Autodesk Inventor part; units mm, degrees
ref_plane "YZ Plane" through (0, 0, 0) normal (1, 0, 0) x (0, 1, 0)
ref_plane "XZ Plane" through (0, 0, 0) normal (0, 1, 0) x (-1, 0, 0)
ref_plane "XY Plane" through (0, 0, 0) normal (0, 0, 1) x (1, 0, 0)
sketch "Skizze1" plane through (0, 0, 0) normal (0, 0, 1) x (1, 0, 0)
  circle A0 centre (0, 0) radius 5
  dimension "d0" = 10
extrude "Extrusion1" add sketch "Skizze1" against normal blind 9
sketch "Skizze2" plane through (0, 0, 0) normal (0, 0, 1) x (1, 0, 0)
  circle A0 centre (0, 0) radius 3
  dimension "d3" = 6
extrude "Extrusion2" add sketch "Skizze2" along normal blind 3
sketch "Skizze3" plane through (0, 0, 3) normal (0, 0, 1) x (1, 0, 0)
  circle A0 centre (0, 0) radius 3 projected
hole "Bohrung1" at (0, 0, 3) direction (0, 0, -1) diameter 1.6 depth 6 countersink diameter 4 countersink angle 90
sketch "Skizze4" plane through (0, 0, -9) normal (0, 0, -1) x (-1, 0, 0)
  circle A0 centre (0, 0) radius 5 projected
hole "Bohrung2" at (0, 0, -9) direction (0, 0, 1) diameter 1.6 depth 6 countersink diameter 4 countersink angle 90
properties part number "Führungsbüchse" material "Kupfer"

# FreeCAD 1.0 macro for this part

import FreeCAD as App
import Part
import Sketcher

V = App.Vector
Q = App.Units.Quantity

doc = App.newDocument("Part")
body = doc.addObject("PartDesign::Body", "Body")

sketch1 = body.newObject("Sketcher::SketchObject", "Sketch")
sketch1.AttachmentSupport = (doc.getObject("XY_Plane"), [""])
sketch1.MapMode = "FlatFace"
sketch1.addGeometry(Part.Circle(V(0, 0, 0), V(0, 0, 1), 5), False)
sketch1.addConstraint([
    Sketcher.Constraint("Coincident", 0, 3, -1, 1),
    Sketcher.Constraint("Diameter", 0, Q("10 mm")),
])
pad1 = body.newObject("PartDesign::Pad", "Pad")
pad1.Profile = sketch1
pad1.Length = 9
pad1.Reversed = True

sketch2 = body.newObject("Sketcher::SketchObject", "Sketch001")
sketch2.AttachmentSupport = (doc.getObject("XY_Plane"), [""])
sketch2.MapMode = "FlatFace"
sketch2.addGeometry(Part.Circle(V(0, 0, 0), V(0, 0, 1), 3), False)
sketch2.addConstraint([
    Sketcher.Constraint("Coincident", 0, 3, -1, 1),
    Sketcher.Constraint("Diameter", 0, Q("6 mm")),
])
pad2 = body.newObject("PartDesign::Pad", "Pad001")
pad2.Profile = sketch2
pad2.Length = 3

sketch3 = body.newObject("Sketcher::SketchObject", "Sketch002")
sketch3.AttachmentSupport = (doc.getObject("XY_Plane"), [""])
sketch3.MapMode = "FlatFace"
sketch3.AttachmentOffset = App.Placement(V(0, 0, 3), App.Rotation())
sketch3.addGeometry(Part.Circle(V(0, 0, 0), V(0, 0, 1), 0.8), False)
sketch3.addConstraint([
    Sketcher.Constraint("Coincident", 0, 3, -1, 1),
    Sketcher.Constraint("Diameter", 0, Q("1.6 mm")),
])
doc.recompute()
hole = body.newObject("PartDesign::Hole", "Hole")
hole.Profile = sketch3
hole.ThreadType = "None"
hole.Diameter = 1.6
hole.DepthType = "Dimension"
hole.Depth = 6
hole.DrillPoint = "Flat"
hole.HoleCutType = "Countersink"
hole.HoleCutDiameter = 4
hole.HoleCutCountersinkAngle = 90

sketch4 = body.newObject("Sketcher::SketchObject", "Sketch003")
sketch4.AttachmentSupport = (doc.getObject("XY_Plane"), [""])
sketch4.MapMode = "FlatFace"
sketch4.AttachmentOffset = App.Placement(V(0, 0, -9), App.Rotation())
sketch4.addGeometry(Part.Circle(V(0, 0, 0), V(0, 0, 1), 0.8), False)
sketch4.addConstraint([
    Sketcher.Constraint("Coincident", 0, 3, -1, 1),
    Sketcher.Constraint("Diameter", 0, Q("1.6 mm")),
])
doc.recompute()
hole2 = body.newObject("PartDesign::Hole", "Hole001")
hole2.Profile = sketch4
hole2.ThreadType = "None"
hole2.Diameter = 1.6
hole2.DepthType = "Dimension"
hole2.Depth = 6
hole2.DrillPoint = "Flat"
hole2.HoleCutType = "Countersink"
hole2.HoleCutDiameter = 4
hole2.HoleCutCountersinkAngle = 90
hole2.Reversed = True

doc.recompute()
